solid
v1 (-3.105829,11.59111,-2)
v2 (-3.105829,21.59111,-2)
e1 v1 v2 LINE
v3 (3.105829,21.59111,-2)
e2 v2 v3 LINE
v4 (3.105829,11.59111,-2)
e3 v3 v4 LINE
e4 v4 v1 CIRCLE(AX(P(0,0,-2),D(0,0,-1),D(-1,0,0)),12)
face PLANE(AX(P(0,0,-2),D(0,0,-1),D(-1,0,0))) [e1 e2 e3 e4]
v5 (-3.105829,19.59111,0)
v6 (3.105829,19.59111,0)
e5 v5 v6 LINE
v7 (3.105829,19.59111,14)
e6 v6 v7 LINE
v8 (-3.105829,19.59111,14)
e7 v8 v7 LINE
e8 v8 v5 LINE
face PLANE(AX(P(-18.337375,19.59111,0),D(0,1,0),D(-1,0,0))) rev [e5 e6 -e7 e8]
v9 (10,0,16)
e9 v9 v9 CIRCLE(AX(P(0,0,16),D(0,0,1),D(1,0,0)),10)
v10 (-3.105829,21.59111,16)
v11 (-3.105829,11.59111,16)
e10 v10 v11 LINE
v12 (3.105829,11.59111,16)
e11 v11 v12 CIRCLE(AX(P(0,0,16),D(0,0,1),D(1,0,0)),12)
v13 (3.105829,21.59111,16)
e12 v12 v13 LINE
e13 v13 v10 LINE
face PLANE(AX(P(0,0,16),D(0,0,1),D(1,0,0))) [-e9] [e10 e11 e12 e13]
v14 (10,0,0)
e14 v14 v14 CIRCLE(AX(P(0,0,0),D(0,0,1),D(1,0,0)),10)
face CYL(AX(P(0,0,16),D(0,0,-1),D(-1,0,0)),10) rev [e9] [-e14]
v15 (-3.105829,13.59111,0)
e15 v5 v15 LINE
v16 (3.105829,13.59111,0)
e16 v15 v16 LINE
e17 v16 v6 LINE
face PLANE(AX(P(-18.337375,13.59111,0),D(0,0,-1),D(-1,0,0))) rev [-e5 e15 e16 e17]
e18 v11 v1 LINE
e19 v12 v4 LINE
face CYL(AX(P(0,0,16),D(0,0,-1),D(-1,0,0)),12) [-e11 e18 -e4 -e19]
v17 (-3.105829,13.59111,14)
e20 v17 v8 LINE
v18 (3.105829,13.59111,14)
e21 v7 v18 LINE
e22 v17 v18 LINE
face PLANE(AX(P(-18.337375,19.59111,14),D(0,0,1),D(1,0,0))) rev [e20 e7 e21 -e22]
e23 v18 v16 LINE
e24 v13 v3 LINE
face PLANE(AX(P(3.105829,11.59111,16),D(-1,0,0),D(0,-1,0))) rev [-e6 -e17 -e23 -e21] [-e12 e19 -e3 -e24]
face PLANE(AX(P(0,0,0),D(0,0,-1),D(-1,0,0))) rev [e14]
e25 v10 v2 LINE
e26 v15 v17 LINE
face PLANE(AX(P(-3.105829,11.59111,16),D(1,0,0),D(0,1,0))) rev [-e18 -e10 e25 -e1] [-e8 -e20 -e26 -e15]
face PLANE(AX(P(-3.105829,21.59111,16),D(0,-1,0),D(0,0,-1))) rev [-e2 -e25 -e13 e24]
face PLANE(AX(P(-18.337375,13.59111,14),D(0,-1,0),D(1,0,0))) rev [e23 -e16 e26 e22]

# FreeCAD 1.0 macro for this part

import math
import FreeCAD as App
import Part
import Sketcher
Q = App.Units.Quantity


def add_polygon(sketch, points):
    """Adds a closed chain of lines whose ends are joined by coincident constraints."""
    first, n = sketch.GeometryCount, len(points)
    for a, b in zip(points, points[1:] + points[:1]):
        sketch.addGeometry(Part.LineSegment(App.Vector(*a, 0), App.Vector(*b, 0)), False)
    for i in range(n):
        sketch.addConstraint(Sketcher.Constraint("Coincident", first + i, 2, first + (i + 1) % n, 1))

doc = App.newDocument("Part")
body = doc.addObject("PartDesign::Body", "Body")

# Sketch on XY plane
sketch1 = body.newObject("Sketcher::SketchObject", "Sketch")
sketch1.AttachmentSupport = (doc.getObject("XY_Plane"), [""])
sketch1.MapMode = "FlatFace"
sketch1.addGeometry(Part.LineSegment(App.Vector(-3.105829, 21.59111, 0), App.Vector(-3.105829, 11.59111, 0)), False)
sketch1.addGeometry(Part.ArcOfCircle(Part.Circle(App.Vector(0, 0, 0), App.Vector(0, 0, 1), 12), math.radians(105), math.radians(435)), False)
sketch1.addGeometry(Part.LineSegment(App.Vector(3.105829, 11.59111, 0), App.Vector(3.105829, 21.59111, 0)), False)
sketch1.addGeometry(Part.LineSegment(App.Vector(3.105829, 21.59111, 0), App.Vector(-3.105829, 21.59111, 0)), False)
sketch1.addGeometry(Part.Circle(App.Vector(0, 0, 0), App.Vector(0, 0, 1), 10), False)
sketch1.addConstraint(Sketcher.Constraint("Coincident", 0, 2, 1, 1))
sketch1.addConstraint(Sketcher.Constraint("Coincident", 1, 2, 2, 1))
sketch1.addConstraint(Sketcher.Constraint("Coincident", 2, 2, 3, 1))
sketch1.addConstraint(Sketcher.Constraint("Coincident", 3, 2, 0, 1))
sketch1.addConstraint(Sketcher.Constraint("Vertical", 0))
sketch1.addConstraint(Sketcher.Constraint("Vertical", 2))
sketch1.addConstraint(Sketcher.Constraint("Horizontal", 3))
sketch1.addConstraint(Sketcher.Constraint("Coincident", 1, 3, -1, 1))
sketch1.addConstraint(Sketcher.Constraint("Coincident", 4, 3, -1, 1))
sketch1.addConstraint(Sketcher.Constraint("Horizontal", 0, 2, 1, 2))
sketch1.addConstraint(Sketcher.Constraint("Diameter", 4, Q("20 mm")))
sketch1.addConstraint(Sketcher.Constraint("Radius", 1, Q("12 mm")))
sketch1.addConstraint(Sketcher.Constraint("DistanceY", 0, 2, 0, 1, Q("10 mm")))
sketch1.addConstraint(Sketcher.Constraint("DistanceX", 3, 2, 3, 1, Q("6.211657 mm")))
pad1 = body.newObject("PartDesign::Pad", "Pad")
pad1.Profile = sketch1
pad1.Length = 16

# Sketch on XY plane
sketch2 = body.newObject("Sketcher::SketchObject", "Sketch001")
sketch2.AttachmentSupport = (doc.getObject("XY_Plane"), [""])
sketch2.MapMode = "FlatFace"
sketch2.addGeometry(Part.LineSegment(App.Vector(-3.105829, 21.59111, 0), App.Vector(3.105829, 21.59111, 0)), False)
sketch2.addGeometry(Part.LineSegment(App.Vector(3.105829, 21.59111, 0), App.Vector(3.105829, 11.59111, 0)), False)
sketch2.addGeometry(Part.ArcOfCircle(Part.Circle(App.Vector(0, 0, 0), App.Vector(0, 0, 1), 12), math.radians(105), math.radians(435)), False)
sketch2.addGeometry(Part.LineSegment(App.Vector(-3.105829, 11.59111, 0), App.Vector(-3.105829, 21.59111, 0)), False)
sketch2.addConstraint(Sketcher.Constraint("Coincident", 0, 2, 1, 1))
sketch2.addConstraint(Sketcher.Constraint("Coincident", 1, 2, 2, 2))
sketch2.addConstraint(Sketcher.Constraint("Coincident", 2, 1, 3, 1))
sketch2.addConstraint(Sketcher.Constraint("Coincident", 3, 2, 0, 1))
sketch2.addConstraint(Sketcher.Constraint("Horizontal", 0))
sketch2.addConstraint(Sketcher.Constraint("Vertical", 1))
sketch2.addConstraint(Sketcher.Constraint("Vertical", 3))
sketch2.addConstraint(Sketcher.Constraint("Coincident", 2, 3, -1, 1))
sketch2.addConstraint(Sketcher.Constraint("Horizontal", 1, 2, 2, 1))
sketch2.addConstraint(Sketcher.Constraint("Radius", 2, Q("12 mm")))
sketch2.addConstraint(Sketcher.Constraint("DistanceY", 1, 2, 1, 1, Q("10 mm")))
sketch2.addConstraint(Sketcher.Constraint("DistanceX", 0, 1, 0, 2, Q("6.211657 mm")))
pad2 = body.newObject("PartDesign::Pad", "Pad001")
pad2.Profile = sketch2
pad2.Length = 2
pad2.Reversed = True

# Sketch on YZ plane
sketch3 = body.newObject("Sketcher::SketchObject", "Sketch002")
sketch3.AttachmentSupport = (doc.getObject("YZ_Plane"), [""])
sketch3.MapMode = "FlatFace"
sketch3.AttachmentOffset = App.Placement(App.Vector(0, 0, 3.105829), App.Rotation())
add_polygon(sketch3, [(13.59111, 14), (13.59111, 0), (19.59111, 0), (19.59111, 14)])  # lines 0-3
sketch3.addConstraint(Sketcher.Constraint("Vertical", 0))
sketch3.addConstraint(Sketcher.Constraint("Horizontal", 1))
sketch3.addConstraint(Sketcher.Constraint("Vertical", 2))
sketch3.addConstraint(Sketcher.Constraint("Horizontal", 3))
sketch3.addConstraint(Sketcher.Constraint("PointOnObject", 0, 2, -1))
sketch3.addConstraint(Sketcher.Constraint("DistanceX", 1, 1, 1, 2, Q("6 mm")))
sketch3.addConstraint(Sketcher.Constraint("DistanceY", 0, 2, 0, 1, Q("14 mm")))
sketch3.addConstraint(Sketcher.Constraint("DistanceX", -1, 1, 0, 2, Q("13.59111 mm")))
pocket1 = body.newObject("PartDesign::Pocket", "Pocket")
pocket1.Profile = sketch3
pocket1.Length = 6.211657

doc.recompute()
